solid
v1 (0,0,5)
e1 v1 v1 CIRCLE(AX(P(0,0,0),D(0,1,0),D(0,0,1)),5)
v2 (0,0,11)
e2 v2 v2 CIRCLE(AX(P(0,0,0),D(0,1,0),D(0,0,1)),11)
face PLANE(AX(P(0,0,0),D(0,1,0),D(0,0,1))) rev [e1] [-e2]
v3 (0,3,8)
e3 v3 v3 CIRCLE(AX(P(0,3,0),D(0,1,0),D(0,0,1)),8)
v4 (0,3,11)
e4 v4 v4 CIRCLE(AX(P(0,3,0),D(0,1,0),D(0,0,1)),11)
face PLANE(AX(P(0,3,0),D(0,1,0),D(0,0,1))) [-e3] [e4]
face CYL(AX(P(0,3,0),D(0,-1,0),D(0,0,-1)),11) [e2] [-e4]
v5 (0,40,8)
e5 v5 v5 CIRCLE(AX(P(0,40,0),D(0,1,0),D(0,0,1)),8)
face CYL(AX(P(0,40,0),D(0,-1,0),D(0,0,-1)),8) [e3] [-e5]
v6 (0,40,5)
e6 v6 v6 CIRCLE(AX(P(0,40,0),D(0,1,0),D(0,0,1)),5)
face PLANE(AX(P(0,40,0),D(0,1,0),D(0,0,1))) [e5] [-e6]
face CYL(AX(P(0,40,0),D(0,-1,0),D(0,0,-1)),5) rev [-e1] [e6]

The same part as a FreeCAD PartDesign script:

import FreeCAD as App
import Part
import Sketcher
Q = App.Units.Quantity

doc = App.newDocument("Part")
body = doc.addObject("PartDesign::Body", "Body")

# Sketch on XZ plane
sketch1 = doc.addObject("Sketcher::SketchObject", "Sketch")
body.addObject(sketch1)
sketch1.AttachmentSupport = (doc.XZ_Plane, [""])
sketch1.MapMode = "FlatFace"
sketch1.addGeometry(Part.Circle(App.Vector(0, 0, 0), App.Vector(0, 0, 1), 8), False)
sketch1.addGeometry(Part.Circle(App.Vector(0, 0, 0), App.Vector(0, 0, 1), 5), False)
sketch1.addConstraint(Sketcher.Constraint("Coincident", 0, 3, -1, 1))
sketch1.addConstraint(Sketcher.Constraint("Coincident", 1, 3, -1, 1))
sketch1.addConstraint(Sketcher.Constraint("Diameter", 0, Q("16 mm")))
sketch1.addConstraint(Sketcher.Constraint("Diameter", 1, Q("10 mm")))
pad1 = doc.addObject("PartDesign::Pad", "Pad")
body.addObject(pad1)
pad1.Profile = sketch1
pad1.Length = 40
pad1.Reversed = True

# Sketch on XZ plane
sketch2 = doc.addObject("Sketcher::SketchObject", "Sketch001")
body.addObject(sketch2)
sketch2.AttachmentSupport = (doc.XZ_Plane, [""])
sketch2.MapMode = "FlatFace"
sketch2.addGeometry(Part.Circle(App.Vector(0, 0, 0), App.Vector(0, 0, 1), 11), False)
sketch2.addGeometry(Part.Circle(App.Vector(0, 0, 0), App.Vector(0, 0, 1), 8), False)
sketch2.addConstraint(Sketcher.Constraint("Coincident", 0, 3, -1, 1))
sketch2.addConstraint(Sketcher.Constraint("Coincident", 1, 3, -1, 1))
sketch2.addConstraint(Sketcher.Constraint("Diameter", 0, Q("22 mm")))
sketch2.addConstraint(Sketcher.Constraint("Diameter", 1, Q("16 mm")))
pad2 = doc.addObject("PartDesign::Pad", "Pad001")
body.addObject(pad2)
pad2.Profile = sketch2
pad2.Length = 3
pad2.Reversed = True

doc.recompute()
